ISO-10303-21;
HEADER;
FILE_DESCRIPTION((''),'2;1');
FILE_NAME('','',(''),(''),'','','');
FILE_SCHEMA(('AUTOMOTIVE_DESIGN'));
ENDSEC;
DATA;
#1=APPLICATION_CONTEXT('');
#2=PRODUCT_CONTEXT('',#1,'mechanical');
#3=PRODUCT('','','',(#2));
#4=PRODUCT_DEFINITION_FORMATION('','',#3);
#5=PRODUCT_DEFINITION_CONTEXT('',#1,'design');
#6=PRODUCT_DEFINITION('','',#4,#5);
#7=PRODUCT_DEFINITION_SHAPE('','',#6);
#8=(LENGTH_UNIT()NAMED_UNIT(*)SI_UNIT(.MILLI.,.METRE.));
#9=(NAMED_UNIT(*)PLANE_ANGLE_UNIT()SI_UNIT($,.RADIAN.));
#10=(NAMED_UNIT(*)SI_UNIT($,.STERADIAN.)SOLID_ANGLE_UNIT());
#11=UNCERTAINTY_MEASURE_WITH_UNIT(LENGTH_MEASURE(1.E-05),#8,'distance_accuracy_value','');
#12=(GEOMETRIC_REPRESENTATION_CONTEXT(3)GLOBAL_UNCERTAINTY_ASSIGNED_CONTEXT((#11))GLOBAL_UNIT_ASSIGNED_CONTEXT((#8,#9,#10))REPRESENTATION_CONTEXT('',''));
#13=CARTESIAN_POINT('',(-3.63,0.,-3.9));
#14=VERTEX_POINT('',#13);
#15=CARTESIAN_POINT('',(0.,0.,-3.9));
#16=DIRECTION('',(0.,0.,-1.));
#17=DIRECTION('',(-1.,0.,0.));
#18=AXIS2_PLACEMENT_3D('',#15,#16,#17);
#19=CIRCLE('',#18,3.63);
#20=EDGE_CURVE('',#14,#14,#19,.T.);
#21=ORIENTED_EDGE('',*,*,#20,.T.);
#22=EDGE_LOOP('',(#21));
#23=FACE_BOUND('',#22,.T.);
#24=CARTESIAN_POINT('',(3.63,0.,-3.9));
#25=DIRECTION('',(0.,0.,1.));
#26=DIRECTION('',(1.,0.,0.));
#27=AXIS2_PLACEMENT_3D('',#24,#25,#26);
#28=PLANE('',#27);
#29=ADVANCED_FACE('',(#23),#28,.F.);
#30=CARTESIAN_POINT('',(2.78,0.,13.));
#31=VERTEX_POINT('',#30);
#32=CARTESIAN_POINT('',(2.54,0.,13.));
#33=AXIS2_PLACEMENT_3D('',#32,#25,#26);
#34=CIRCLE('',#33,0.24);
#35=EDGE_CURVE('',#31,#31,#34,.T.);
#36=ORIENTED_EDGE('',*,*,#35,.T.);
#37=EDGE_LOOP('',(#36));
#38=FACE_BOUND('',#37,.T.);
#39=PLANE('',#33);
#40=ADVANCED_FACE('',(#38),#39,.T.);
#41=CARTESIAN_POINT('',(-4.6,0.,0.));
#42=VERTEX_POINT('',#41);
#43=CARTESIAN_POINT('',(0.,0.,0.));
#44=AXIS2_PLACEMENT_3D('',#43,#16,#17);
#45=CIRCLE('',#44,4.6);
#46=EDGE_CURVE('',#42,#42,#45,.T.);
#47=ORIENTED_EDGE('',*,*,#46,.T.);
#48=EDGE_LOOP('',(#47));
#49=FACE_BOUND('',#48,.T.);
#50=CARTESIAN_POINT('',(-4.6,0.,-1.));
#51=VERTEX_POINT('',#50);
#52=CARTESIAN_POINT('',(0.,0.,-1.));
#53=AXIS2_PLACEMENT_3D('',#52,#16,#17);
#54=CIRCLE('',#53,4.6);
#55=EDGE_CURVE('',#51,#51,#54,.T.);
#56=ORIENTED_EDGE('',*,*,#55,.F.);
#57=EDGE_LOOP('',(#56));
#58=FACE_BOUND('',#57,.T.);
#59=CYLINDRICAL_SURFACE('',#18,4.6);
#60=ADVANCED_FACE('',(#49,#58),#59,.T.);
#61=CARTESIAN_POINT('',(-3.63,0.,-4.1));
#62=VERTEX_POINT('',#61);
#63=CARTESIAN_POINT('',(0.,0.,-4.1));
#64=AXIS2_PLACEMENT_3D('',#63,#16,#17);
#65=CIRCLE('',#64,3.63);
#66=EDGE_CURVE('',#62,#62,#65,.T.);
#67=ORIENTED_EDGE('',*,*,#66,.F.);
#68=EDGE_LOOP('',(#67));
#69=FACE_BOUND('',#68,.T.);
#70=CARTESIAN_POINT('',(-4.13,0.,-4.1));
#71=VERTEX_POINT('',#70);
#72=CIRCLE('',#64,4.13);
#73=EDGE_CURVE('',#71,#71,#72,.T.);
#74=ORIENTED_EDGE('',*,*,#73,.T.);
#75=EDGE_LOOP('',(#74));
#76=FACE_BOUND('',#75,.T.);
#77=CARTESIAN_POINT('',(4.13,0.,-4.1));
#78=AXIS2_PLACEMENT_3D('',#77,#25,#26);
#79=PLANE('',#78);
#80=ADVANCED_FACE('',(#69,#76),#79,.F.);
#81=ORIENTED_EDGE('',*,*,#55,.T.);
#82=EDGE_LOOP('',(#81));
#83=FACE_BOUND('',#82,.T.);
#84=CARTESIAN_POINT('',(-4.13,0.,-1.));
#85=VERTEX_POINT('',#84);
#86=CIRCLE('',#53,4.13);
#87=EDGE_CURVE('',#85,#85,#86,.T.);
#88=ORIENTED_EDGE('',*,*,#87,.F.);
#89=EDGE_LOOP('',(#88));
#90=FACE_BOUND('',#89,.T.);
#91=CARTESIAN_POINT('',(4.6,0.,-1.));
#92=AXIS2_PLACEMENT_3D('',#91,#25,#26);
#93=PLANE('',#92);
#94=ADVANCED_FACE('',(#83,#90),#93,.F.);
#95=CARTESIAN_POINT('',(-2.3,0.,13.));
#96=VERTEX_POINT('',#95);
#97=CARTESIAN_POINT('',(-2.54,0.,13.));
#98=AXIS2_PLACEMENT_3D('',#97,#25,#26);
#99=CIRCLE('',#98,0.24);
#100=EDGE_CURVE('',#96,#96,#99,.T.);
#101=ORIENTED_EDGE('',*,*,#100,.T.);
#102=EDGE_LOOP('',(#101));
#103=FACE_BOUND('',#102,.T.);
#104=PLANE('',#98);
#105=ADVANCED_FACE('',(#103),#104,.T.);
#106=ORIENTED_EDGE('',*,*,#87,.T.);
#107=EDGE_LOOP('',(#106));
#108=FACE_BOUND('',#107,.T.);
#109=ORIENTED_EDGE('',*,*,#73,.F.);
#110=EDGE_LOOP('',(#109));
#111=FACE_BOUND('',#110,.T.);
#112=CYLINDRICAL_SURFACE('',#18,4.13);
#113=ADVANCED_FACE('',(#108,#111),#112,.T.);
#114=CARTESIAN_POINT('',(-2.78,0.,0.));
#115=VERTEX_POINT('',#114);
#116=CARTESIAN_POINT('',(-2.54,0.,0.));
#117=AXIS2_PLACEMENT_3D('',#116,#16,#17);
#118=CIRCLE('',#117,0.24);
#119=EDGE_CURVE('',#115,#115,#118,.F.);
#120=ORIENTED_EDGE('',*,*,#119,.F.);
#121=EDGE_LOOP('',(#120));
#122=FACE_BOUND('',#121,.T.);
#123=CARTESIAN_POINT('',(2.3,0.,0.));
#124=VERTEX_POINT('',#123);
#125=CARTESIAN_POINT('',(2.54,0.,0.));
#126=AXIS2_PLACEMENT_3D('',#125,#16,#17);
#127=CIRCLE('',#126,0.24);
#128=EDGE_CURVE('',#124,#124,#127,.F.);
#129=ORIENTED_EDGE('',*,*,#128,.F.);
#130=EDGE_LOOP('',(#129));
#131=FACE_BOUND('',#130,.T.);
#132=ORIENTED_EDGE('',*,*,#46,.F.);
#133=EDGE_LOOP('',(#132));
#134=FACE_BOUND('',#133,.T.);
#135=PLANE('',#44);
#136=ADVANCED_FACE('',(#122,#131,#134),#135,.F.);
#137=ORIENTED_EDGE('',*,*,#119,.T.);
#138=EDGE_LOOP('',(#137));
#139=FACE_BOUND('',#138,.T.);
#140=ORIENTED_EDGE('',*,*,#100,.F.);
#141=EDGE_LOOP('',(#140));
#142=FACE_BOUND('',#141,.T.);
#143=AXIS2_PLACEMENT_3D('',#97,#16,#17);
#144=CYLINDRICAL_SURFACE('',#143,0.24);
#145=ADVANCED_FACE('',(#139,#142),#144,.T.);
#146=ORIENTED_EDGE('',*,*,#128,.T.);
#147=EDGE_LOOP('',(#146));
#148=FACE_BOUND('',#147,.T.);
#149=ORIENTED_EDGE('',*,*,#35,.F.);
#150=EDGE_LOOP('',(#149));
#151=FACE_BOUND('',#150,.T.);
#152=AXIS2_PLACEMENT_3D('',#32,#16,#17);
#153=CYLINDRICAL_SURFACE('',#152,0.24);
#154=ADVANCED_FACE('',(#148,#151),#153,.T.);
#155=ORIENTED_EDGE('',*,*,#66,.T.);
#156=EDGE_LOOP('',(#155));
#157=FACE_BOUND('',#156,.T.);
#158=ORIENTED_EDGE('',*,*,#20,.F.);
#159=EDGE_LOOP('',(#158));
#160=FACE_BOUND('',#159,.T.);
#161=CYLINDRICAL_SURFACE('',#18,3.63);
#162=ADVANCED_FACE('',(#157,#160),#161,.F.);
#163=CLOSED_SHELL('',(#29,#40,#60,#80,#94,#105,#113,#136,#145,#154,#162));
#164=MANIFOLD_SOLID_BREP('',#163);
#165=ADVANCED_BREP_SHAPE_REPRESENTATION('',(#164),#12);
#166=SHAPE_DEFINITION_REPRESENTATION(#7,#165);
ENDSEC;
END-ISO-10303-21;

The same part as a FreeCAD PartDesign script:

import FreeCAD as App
import Part
import Sketcher

doc = App.newDocument("Part")
body = doc.addObject("PartDesign::Body", "Body")

# Sketch on XZ plane
sketch1 = body.newObject("Sketcher::SketchObject", "Sketch")
sketch1.AttachmentSupport = (doc.getObject("XZ_Plane"), [""])
sketch1.MapMode = "FlatFace"
sketch1.addGeometry([
    Part.LineSegment(App.Vector(0, 0, 0), App.Vector(4.6, 0, 0)),  # 0
    Part.LineSegment(App.Vector(4.6, 0, 0), App.Vector(4.6, -1, 0)),  # 1
    Part.LineSegment(App.Vector(4.6, -1, 0), App.Vector(4.13, -1, 0)),  # 2
    Part.LineSegment(App.Vector(4.13, -1, 0), App.Vector(4.13, -4.1, 0)),  # 3
    Part.LineSegment(App.Vector(4.13, -4.1, 0), App.Vector(3.63, -4.1, 0)),  # 4
    Part.LineSegment(App.Vector(3.63, -4.1, 0), App.Vector(3.63, -3.9, 0)),  # 5
    Part.LineSegment(App.Vector(3.63, -3.9, 0), App.Vector(0, -3.9, 0)),  # 6
    Part.LineSegment(App.Vector(0, -3.9, 0), App.Vector(0, 0, 0)),  # 7
], False)
sketch1.addConstraint([
    Sketcher.Constraint("Coincident", 0, 2, 1, 1),
    Sketcher.Constraint("Coincident", 1, 2, 2, 1),
    Sketcher.Constraint("Coincident", 2, 2, 3, 1),
    Sketcher.Constraint("Coincident", 3, 2, 4, 1),
    Sketcher.Constraint("Coincident", 4, 2, 5, 1),
    Sketcher.Constraint("Coincident", 5, 2, 6, 1),
    Sketcher.Constraint("Coincident", 6, 2, 7, 1),
    Sketcher.Constraint("Coincident", 7, 2, 0, 1),
    Sketcher.Constraint("Horizontal", 0),
    Sketcher.Constraint("Vertical", 1),
    Sketcher.Constraint("Horizontal", 2),
    Sketcher.Constraint("Vertical", 3),
    Sketcher.Constraint("Horizontal", 4),
    Sketcher.Constraint("Vertical", 5),
    Sketcher.Constraint("Horizontal", 6),
    Sketcher.Constraint("Vertical", 7),
    Sketcher.Constraint("Coincident", 7, 2, -1, 1),
    Sketcher.Constraint("DistanceY", 1, 2, 1, 1, 1.0),
    Sketcher.Constraint("DistanceX", 0, 1, 0, 2, 4.6),
    Sketcher.Constraint("DistanceX", 4, 2, 4, 1, 0.5),
    Sketcher.Constraint("DistanceY", 3, 2, 3, 1, 3.1),
    Sketcher.Constraint("DistanceY", 5, 1, 5, 2, 0.2),
    Sketcher.Constraint("DistanceX", 2, 2, 2, 1, 0.47),
])
revolution = body.newObject("PartDesign::Revolution", "Revolution")
revolution.Profile = sketch1
revolution.ReferenceAxis = (sketch1, ["V_Axis"])
revolution.Angle = 360

# Sketch on XY plane
sketch2 = body.newObject("Sketcher::SketchObject", "Sketch001")
sketch2.AttachmentSupport = (doc.getObject("XY_Plane"), [""])
sketch2.MapMode = "FlatFace"
sketch2.addGeometry([
    Part.Circle(App.Vector(-2.54, 0, 0), App.Vector(0, 0, 1), 0.24),
    Part.Circle(App.Vector(2.54, 0, 0), App.Vector(0, 0, 1), 0.24),
], False)
sketch2.addConstraint([
    Sketcher.Constraint("Equal", 0, 1),
    Sketcher.Constraint("Symmetric", 0, 3, 1, 3, -1, 1),
    Sketcher.Constraint("PointOnObject", 0, 3, -1),
    Sketcher.Constraint("Diameter", 0, 0.48),
    Sketcher.Constraint("DistanceX", 0, 3, -1, 1, 2.54),
])
pad1 = body.newObject("PartDesign::Pad", "Pad")
pad1.Profile = sketch2
pad1.Length = 13

doc.recompute()
